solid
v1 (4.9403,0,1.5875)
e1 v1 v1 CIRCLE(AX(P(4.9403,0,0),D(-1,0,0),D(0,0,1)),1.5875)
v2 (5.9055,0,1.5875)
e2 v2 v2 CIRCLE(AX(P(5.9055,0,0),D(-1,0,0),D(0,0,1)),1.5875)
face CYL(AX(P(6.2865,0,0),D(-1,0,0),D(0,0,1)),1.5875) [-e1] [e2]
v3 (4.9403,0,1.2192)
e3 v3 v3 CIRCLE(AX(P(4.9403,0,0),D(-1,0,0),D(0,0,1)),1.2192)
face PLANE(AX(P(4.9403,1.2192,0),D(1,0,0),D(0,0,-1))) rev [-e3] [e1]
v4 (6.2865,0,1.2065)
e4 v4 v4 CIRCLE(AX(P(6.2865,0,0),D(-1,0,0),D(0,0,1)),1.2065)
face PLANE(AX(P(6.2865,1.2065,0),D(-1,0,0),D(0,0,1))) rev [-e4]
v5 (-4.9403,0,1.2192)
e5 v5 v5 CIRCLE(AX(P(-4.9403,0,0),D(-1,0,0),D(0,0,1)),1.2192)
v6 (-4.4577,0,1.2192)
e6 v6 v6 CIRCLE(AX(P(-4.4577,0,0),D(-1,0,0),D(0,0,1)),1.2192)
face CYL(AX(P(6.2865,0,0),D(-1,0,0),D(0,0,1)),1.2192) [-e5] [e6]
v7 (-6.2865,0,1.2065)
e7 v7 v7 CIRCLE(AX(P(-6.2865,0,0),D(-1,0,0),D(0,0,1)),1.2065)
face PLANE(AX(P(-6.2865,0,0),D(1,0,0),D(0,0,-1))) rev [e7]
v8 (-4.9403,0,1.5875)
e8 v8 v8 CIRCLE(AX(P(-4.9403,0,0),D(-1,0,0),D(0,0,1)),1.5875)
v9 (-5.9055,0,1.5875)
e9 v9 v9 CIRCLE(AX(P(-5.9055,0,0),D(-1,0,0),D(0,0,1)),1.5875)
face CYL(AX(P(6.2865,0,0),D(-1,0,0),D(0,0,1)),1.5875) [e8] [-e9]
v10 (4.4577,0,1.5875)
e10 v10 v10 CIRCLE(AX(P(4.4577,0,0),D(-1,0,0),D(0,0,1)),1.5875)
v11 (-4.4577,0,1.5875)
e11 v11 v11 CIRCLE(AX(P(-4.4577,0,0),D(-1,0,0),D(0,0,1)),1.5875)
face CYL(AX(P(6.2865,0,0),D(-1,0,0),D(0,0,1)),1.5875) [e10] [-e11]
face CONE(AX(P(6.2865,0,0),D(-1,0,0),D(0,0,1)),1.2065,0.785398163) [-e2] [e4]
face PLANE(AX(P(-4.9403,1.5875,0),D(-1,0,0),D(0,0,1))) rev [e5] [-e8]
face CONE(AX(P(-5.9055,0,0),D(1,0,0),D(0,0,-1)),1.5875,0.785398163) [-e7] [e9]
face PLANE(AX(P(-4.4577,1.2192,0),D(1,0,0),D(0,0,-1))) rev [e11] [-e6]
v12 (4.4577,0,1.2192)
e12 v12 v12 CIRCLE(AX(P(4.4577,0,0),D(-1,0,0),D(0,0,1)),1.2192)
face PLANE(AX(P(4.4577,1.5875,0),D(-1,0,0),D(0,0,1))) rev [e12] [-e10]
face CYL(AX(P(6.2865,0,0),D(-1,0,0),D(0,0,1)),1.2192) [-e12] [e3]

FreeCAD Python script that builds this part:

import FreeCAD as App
import Part
import Sketcher

V = App.Vector
Q = App.Units.Quantity


def add_polygon(sketch, points):
    """Adds a closed chain of lines whose ends are joined by coincident constraints."""
    first, n = sketch.GeometryCount, len(points)
    for a, b in zip(points, points[1:] + points[:1]):
        sketch.addGeometry(Part.LineSegment(App.Vector(*a, 0), App.Vector(*b, 0)), False)
    for i in range(n):
        sketch.addConstraint(Sketcher.Constraint("Coincident", first + i, 2, first + (i + 1) % n, 1))

doc = App.newDocument("Part")
params = doc.addObject("Spreadsheet::Sheet", "Params")
for row, (alias, value) in enumerate([
    ("sketch1_width", "0.495 in"),
    ("sketch1_width2", "0.038 in"),
    ("sketch1_width3", "0.019 in"),
    ("sketch1_width4", "0.351 in"),
    ("revolution_angle", "360 deg"),
], start=1):
    params.set(f"A{row}", alias)
    params.set(f"B{row}", "=" + value)
    params.setAlias(f"B{row}", alias)

body = doc.addObject("PartDesign::Body", "Body")

sketch1 = body.newObject("Sketcher::SketchObject", "Sketch")
sketch1.AttachmentSupport = (doc.getObject("XY_Plane"), [""])
sketch1.MapMode = "FlatFace"
add_polygon(sketch1, [(-6.29, 1.21), (-6.29, 0), (6.29, 0), (6.29, 1.21), (5.91, 1.59), (4.94, 1.59), (4.94, 1.22), (4.46, 1.22), (4.46, 1.59), (-4.46, 1.59), (-4.46, 1.22), (-4.94, 1.22), (-4.94, 1.59), (-5.91, 1.59)])
sketch1.addConstraint([
    Sketcher.Constraint("Vertical", 0),
    Sketcher.Constraint("Horizontal", 1),
    Sketcher.Constraint("Vertical", 2),
    Sketcher.Constraint("Horizontal", 4),
    Sketcher.Constraint("Vertical", 5),
    Sketcher.Constraint("Horizontal", 6),
    Sketcher.Constraint("Vertical", 7),
    Sketcher.Constraint("Horizontal", 8),
    Sketcher.Constraint("Vertical", 9),
    Sketcher.Constraint("Horizontal", 10),
    Sketcher.Constraint("Vertical", 11),
    Sketcher.Constraint("Horizontal", 12),
    Sketcher.Constraint("Symmetric", 0, 2, 1, 2, -1, 1),
    Sketcher.Constraint("Symmetric", 6, 2, 9, 2, -2),
    Sketcher.Constraint("Symmetric", 4, 2, 11, 2, -2),
    Sketcher.Constraint("Perpendicular", 3, 13),
    Sketcher.Constraint("Horizontal", 4, 2, 7, 2),
    Sketcher.Constraint("Horizontal", 2, 2, 13, 2),
    Sketcher.Constraint("Equal", 4, 12),
    Sketcher.Constraint("DistanceX", 1, 1, 1, 2, Q("0.495 in")),
    Sketcher.Constraint("DistanceX", 4, 2, 4, 1, Q("0.038 in")),
    Sketcher.Constraint("DistanceX", 6, 2, 6, 1, Q("0.019 in")),
    Sketcher.Constraint("DistanceX", 8, 2, 8, 1, Q("0.351 in")),
    Sketcher.Constraint("DistanceY", 0, 2, 0, 1, Q("0.0475 in")),
    Sketcher.Constraint("DistanceY", 5, 2, 5, 1, Q("0.0145 in")),
])
sketch1.setExpression("Constraints[33]", "Params.sketch1_width")
sketch1.setExpression("Constraints[34]", "Params.sketch1_width2")
sketch1.setExpression("Constraints[35]", "Params.sketch1_width3")
sketch1.setExpression("Constraints[36]", "Params.sketch1_width4")
revolution = body.newObject("PartDesign::Revolution", "Revolution")
revolution.Profile = sketch1
revolution.ReferenceAxis = (sketch1, ["H_Axis"])
revolution.setExpression("Angle", "Params.revolution_angle")

doc.recompute()
